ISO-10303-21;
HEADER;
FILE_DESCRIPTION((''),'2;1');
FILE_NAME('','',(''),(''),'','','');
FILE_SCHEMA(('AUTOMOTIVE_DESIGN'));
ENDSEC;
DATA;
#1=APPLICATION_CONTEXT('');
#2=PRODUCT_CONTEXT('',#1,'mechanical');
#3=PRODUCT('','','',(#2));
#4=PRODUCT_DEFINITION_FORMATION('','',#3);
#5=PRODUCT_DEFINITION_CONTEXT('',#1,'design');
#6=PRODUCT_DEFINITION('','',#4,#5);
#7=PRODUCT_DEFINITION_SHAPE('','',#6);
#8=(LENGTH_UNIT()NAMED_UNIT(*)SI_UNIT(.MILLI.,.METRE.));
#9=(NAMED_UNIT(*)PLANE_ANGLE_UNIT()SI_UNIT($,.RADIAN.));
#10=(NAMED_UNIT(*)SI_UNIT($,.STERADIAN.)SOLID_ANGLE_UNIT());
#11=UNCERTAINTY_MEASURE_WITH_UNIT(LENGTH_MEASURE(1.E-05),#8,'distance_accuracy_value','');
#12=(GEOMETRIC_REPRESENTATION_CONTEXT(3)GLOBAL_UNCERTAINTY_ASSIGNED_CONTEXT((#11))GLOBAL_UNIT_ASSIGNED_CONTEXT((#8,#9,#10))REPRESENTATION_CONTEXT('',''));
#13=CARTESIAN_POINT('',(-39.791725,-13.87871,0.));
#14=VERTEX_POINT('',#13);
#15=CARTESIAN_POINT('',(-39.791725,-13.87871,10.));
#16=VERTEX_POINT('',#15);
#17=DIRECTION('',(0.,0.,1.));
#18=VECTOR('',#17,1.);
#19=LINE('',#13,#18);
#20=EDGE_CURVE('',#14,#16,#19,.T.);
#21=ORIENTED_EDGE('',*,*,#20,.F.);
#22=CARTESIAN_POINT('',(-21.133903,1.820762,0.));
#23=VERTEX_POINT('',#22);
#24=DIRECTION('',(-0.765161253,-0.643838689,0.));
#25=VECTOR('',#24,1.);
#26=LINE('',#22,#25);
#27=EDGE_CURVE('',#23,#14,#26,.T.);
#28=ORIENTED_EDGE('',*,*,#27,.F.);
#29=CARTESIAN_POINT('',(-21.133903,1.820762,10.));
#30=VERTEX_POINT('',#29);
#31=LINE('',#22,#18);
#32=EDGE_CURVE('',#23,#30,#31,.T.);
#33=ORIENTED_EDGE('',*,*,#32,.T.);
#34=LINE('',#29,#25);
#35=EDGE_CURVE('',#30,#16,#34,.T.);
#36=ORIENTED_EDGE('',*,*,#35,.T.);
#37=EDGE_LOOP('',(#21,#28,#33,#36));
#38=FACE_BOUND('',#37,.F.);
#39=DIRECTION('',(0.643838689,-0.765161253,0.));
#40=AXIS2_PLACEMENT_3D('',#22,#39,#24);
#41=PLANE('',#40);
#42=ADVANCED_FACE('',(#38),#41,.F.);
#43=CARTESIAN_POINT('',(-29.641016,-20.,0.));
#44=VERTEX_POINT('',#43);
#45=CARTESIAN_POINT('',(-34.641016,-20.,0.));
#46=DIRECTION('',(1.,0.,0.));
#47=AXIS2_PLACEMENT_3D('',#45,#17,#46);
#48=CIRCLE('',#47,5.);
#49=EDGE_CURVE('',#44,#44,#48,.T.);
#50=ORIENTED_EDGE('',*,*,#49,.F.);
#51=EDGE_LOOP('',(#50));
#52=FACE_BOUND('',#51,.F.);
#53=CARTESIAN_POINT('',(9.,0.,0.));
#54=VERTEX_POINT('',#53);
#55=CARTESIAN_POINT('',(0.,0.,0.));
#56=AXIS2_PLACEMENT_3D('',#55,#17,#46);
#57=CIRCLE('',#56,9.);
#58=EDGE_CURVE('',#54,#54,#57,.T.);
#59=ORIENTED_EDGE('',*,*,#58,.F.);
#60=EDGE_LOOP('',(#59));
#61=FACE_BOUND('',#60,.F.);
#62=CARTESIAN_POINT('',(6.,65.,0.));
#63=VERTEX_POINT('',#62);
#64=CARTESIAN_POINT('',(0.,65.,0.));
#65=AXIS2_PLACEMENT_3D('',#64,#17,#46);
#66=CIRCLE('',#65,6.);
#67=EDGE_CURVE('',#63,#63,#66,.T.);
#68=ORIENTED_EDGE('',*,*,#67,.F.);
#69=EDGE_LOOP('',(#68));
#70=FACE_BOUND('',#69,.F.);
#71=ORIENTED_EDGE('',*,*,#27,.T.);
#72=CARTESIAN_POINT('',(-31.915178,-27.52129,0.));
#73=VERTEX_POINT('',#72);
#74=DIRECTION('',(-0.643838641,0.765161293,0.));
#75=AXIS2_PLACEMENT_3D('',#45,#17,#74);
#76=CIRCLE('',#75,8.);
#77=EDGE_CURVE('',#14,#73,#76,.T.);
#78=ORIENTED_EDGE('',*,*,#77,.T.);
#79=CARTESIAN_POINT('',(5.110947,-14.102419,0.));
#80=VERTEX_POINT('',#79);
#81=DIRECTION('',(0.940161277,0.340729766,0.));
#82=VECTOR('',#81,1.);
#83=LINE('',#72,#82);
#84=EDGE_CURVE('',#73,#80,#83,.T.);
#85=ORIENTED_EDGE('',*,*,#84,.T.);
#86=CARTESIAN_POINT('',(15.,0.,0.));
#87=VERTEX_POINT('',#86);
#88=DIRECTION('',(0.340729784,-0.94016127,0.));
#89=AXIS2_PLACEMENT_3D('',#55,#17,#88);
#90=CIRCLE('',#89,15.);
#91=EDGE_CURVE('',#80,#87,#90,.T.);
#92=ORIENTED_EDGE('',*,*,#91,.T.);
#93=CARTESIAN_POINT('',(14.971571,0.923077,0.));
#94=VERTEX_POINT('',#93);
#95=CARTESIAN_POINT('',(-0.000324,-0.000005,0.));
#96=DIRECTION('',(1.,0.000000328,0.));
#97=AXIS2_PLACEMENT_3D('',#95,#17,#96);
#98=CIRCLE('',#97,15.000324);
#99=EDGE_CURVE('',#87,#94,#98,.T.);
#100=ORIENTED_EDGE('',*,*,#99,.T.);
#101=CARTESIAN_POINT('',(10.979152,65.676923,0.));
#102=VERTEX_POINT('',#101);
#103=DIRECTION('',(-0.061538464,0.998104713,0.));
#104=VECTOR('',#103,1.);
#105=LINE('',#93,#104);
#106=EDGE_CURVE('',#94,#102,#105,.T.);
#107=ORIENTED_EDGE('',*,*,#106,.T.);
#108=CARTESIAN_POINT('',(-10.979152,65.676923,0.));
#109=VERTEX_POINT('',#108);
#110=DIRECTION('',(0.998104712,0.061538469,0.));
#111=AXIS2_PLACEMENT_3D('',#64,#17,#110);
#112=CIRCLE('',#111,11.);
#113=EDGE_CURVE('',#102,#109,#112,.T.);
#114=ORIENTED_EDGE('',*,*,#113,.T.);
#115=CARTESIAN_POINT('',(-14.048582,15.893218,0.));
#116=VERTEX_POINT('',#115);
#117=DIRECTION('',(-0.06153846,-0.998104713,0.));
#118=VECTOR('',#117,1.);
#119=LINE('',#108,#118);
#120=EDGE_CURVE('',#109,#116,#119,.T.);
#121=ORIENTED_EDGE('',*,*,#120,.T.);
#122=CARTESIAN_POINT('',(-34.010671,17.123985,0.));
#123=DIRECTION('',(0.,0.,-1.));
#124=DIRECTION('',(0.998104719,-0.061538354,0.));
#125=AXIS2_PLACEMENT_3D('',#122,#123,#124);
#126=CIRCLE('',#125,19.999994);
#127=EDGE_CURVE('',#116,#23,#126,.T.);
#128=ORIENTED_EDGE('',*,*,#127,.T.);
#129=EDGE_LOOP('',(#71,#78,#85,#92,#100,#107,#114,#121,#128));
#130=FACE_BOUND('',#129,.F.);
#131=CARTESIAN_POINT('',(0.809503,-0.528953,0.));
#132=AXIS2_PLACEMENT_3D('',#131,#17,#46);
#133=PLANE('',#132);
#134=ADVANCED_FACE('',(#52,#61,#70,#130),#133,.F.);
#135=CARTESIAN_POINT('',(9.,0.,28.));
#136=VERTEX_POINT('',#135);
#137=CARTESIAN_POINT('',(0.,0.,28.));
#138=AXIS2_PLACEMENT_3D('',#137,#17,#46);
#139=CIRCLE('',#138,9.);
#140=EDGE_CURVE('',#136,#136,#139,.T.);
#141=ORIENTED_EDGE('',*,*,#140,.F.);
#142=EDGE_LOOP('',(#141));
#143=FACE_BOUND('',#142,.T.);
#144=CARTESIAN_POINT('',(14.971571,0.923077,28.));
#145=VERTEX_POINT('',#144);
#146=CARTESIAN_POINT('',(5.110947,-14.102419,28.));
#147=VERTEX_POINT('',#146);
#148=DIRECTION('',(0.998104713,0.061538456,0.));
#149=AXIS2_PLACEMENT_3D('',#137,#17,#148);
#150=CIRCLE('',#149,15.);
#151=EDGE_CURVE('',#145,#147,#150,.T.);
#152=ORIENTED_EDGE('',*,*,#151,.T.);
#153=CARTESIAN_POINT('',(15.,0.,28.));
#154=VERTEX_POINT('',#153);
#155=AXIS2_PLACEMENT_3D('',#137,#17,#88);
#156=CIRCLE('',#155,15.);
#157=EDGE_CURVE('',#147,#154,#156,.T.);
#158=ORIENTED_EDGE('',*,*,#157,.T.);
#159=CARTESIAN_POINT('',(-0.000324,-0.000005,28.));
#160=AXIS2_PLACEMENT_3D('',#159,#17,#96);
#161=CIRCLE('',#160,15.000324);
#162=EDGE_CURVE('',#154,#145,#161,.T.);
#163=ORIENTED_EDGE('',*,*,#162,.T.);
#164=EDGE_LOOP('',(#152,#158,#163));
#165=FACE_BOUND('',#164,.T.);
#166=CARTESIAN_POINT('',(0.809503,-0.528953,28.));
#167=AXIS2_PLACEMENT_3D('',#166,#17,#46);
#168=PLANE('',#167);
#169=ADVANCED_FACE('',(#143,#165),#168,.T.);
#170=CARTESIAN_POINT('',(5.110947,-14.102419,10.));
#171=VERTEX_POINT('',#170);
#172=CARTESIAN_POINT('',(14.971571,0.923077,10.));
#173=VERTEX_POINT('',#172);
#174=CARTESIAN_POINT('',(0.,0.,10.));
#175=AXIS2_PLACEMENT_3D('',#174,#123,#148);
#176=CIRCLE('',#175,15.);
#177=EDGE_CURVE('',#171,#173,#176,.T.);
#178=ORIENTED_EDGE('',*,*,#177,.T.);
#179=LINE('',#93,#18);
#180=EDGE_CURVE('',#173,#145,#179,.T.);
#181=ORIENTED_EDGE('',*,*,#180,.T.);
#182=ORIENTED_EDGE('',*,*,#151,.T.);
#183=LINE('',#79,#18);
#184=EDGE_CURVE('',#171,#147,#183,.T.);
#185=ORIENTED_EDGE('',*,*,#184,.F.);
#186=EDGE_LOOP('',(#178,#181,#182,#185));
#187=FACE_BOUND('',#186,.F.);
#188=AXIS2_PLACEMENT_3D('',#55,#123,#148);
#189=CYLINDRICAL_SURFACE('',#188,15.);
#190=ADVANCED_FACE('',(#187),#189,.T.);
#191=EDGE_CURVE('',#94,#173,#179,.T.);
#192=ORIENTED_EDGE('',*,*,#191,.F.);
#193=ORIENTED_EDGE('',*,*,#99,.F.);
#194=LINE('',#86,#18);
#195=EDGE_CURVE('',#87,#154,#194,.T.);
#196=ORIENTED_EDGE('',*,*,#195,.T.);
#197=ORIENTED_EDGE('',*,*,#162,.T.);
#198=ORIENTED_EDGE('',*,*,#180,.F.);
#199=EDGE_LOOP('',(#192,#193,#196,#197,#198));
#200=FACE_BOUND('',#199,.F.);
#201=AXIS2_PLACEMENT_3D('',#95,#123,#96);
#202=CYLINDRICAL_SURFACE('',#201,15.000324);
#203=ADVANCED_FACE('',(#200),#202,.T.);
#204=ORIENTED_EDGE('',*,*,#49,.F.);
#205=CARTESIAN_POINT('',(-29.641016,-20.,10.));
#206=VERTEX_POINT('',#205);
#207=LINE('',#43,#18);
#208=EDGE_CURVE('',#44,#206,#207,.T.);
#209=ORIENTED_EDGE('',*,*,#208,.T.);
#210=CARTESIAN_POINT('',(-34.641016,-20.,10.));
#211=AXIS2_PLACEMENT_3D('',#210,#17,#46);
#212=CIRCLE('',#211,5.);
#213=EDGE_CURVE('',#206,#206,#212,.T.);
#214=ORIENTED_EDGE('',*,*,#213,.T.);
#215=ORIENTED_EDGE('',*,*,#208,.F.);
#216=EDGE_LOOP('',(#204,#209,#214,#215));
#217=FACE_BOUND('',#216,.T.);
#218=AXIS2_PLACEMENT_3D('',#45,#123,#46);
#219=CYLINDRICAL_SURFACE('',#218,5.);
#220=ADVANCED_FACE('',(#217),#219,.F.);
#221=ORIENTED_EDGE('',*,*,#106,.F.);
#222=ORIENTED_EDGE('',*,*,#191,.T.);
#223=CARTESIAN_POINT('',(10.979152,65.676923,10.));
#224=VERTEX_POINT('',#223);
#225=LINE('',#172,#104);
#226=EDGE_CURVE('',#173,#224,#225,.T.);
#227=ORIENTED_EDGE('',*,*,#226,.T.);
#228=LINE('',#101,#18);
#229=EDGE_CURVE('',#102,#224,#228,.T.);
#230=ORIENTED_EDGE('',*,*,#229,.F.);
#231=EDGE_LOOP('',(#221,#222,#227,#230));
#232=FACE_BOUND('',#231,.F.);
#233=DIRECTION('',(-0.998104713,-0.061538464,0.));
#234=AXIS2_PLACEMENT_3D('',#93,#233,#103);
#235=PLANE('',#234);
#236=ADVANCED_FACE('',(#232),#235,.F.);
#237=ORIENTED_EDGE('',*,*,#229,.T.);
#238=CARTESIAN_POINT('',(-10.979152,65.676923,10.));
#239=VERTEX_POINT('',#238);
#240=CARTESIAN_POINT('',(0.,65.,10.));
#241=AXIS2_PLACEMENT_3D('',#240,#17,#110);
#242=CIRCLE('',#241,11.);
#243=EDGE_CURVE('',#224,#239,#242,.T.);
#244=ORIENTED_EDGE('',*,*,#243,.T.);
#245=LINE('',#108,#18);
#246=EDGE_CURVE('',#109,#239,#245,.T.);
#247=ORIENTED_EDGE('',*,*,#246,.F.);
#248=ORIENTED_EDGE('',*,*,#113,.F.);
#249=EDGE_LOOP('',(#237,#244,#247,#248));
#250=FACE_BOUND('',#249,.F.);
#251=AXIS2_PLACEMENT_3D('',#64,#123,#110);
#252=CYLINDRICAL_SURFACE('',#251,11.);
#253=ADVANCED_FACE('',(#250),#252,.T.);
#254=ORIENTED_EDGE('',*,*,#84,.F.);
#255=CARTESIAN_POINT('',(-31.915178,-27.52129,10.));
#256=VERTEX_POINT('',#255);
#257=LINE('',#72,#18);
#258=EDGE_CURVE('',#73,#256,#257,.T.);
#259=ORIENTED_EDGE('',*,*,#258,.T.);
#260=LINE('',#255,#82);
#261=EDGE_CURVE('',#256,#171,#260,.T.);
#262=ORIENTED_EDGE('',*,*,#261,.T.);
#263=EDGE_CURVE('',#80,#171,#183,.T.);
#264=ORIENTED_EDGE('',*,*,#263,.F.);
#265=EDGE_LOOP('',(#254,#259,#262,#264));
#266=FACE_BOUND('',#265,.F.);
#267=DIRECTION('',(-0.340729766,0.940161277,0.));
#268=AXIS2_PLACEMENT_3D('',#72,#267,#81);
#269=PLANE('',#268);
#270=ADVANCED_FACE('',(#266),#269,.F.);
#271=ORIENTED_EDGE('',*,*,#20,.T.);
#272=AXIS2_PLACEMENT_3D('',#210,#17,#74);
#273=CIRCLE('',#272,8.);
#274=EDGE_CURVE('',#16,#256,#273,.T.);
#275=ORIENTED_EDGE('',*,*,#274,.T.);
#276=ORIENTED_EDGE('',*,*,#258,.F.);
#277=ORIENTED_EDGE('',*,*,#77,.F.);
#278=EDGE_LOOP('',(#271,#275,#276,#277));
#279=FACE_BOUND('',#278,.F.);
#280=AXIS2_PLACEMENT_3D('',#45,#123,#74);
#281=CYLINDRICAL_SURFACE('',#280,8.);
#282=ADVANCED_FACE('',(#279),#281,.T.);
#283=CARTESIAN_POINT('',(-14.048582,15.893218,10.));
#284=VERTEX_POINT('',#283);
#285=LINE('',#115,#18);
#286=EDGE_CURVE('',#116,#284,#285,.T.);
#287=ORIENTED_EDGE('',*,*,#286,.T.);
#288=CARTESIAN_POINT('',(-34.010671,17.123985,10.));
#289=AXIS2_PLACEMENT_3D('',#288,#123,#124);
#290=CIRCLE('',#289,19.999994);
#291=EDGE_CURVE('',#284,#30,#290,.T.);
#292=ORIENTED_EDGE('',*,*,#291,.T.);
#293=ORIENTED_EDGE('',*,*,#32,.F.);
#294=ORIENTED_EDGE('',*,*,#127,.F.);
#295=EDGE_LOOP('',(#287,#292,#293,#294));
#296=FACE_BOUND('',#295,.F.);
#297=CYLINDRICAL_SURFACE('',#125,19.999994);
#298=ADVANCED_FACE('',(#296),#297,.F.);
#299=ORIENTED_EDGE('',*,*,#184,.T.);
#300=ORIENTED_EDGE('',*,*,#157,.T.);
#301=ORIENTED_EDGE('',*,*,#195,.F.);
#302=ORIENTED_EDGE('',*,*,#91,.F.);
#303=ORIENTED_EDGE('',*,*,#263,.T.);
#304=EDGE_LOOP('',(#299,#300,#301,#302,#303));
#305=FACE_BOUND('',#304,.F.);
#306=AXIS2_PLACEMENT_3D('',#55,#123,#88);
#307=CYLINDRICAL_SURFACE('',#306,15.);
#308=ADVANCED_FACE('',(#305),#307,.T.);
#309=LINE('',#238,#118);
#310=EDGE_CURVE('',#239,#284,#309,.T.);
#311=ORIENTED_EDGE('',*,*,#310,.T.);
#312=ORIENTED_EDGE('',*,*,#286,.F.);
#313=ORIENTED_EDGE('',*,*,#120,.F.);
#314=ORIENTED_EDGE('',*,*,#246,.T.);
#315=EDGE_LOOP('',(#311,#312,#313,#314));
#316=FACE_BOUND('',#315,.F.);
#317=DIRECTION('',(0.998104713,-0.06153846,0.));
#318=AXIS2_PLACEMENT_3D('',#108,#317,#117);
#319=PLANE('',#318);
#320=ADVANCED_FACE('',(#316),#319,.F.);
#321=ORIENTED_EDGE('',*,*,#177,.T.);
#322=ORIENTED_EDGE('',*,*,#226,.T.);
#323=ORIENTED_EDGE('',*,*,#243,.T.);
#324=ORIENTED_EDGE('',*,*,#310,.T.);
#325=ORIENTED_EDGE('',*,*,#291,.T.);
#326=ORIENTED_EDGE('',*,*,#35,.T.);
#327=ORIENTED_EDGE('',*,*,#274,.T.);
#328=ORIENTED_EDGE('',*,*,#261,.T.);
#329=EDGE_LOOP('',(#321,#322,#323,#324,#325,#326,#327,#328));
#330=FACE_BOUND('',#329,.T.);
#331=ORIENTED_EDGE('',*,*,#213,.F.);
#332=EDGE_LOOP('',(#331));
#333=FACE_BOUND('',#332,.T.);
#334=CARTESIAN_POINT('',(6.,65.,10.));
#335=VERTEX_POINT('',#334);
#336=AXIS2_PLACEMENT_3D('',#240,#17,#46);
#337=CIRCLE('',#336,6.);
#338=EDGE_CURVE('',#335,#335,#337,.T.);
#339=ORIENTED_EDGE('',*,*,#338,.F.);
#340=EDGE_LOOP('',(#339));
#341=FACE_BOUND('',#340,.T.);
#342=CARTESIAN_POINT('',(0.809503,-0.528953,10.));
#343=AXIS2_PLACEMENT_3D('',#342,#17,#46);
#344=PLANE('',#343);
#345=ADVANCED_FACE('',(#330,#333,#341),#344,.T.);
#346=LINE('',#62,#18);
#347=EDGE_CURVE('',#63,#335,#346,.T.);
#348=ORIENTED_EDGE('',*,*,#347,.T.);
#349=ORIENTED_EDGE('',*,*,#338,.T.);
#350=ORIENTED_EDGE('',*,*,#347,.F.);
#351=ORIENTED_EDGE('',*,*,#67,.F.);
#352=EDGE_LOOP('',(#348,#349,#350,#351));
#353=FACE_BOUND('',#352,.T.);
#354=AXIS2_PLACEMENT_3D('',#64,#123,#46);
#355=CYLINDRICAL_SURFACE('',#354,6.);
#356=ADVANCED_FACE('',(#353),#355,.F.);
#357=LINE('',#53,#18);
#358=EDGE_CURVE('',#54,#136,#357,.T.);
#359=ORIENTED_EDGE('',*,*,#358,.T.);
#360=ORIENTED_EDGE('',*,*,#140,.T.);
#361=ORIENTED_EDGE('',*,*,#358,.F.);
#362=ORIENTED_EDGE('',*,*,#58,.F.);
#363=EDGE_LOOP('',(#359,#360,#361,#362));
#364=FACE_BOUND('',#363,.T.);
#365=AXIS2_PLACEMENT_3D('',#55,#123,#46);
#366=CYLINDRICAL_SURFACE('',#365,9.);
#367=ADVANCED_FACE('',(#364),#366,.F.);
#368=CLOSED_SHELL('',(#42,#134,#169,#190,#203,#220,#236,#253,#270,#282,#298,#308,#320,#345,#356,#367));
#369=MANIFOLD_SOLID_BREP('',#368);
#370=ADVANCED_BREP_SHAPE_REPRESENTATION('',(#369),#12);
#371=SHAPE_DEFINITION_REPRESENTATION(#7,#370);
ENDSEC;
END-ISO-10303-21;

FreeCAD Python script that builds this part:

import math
import FreeCAD as App
import Part
import Sketcher

V = App.Vector

doc = App.newDocument("Part")
body = doc.addObject("PartDesign::Body", "Body")

# Sketch on XY plane
sketch1 = doc.addObject("Sketcher::SketchObject", "Sketch")
body.addObject(sketch1)
sketch1.AttachmentSupport = (doc.XY_Plane, [""])
sketch1.MapMode = "FlatFace"
sketch1.addGeometry([
    Part.ArcOfCircle(Part.Circle(V(0, 0, 0), V(0, 0, 1), 15), math.radians(-70.078657), math.radians(0.000001)),
    Part.ArcOfCircle(Part.Circle(V(-0.000324, -0.000005, 0), V(0, 0, 1), 15.000324), math.radians(0.000019), math.radians(3.528066)),
    Part.ArcOfCircle(Part.Circle(V(0, 0, 0), V(0, 0, 1), 15), math.radians(3.528123), math.radians(289.921343)),
    Part.Circle(V(0, 0, 0), V(0, 0, 1), 9),
], False)
sketch1.addConstraint([
    Sketcher.Constraint("Coincident", 0, 2, 1, 1),
    Sketcher.Constraint("Coincident", 1, 2, 2, 1),
    Sketcher.Constraint("Coincident", 2, 2, 0, 1),
    Sketcher.Constraint("Coincident", 0, 3, -1, 1),
    Sketcher.Constraint("Coincident", 2, 3, -1, 1),
    Sketcher.Constraint("Coincident", 3, 3, -1, 1),
    Sketcher.Constraint("PointOnObject", 0, 2, -1),
    Sketcher.Constraint("Diameter", 3, 18.0),
    Sketcher.Constraint("Radius", 0, 15.0),
    Sketcher.Constraint("Radius", 1, 15.000324),
    Sketcher.Constraint("DistanceX", -1, 1, 1, 2, 14.971571),
    Sketcher.Constraint("DistanceY", 2, 2, -1, 1, 14.102419),
])
pad1 = doc.addObject("PartDesign::Pad", "Pad")
body.addObject(pad1)
pad1.Profile = sketch1
pad1.Length = 28

# Sketch on XY plane
sketch2 = doc.addObject("Sketcher::SketchObject", "Sketch001")
body.addObject(sketch2)
sketch2.AttachmentSupport = (doc.XY_Plane, [""])
sketch2.MapMode = "FlatFace"
sketch2.addGeometry([
    Part.ArcOfCircle(Part.Circle(V(0, 0, 0), V(0, 0, 1), 15), math.radians(-70.078657), math.radians(0.000001)),  # 0
    Part.ArcOfCircle(Part.Circle(V(-0.000324, -0.000005, 0), V(0, 0, 1), 15.000324), math.radians(0.000019), math.radians(3.528066)),  # 1
    Part.LineSegment(V(14.971571, 0.923077, 0), V(10.979152, 65.676923, 0)),  # 2
    Part.ArcOfCircle(Part.Circle(V(0, 65, 0), V(0, 0, 1), 11), math.radians(3.528124), math.radians(176.471876)),  # 3
    Part.LineSegment(V(-10.979152, 65.676923, 0), V(-14.048582, 15.893218, 0)),  # 4
    Part.ArcOfCircle(Part.Circle(V(-34.010671, 17.123985, 0), V(0, 0, 1), 19.999994), math.radians(-49.921349), math.radians(-3.528117)),  # 5
    Part.LineSegment(V(-21.133903, 1.820762, 0), V(-39.791725, -13.87871, 0)),  # 6
    Part.ArcOfCircle(Part.Circle(V(-34.641016, -20, 0), V(0, 0, 1), 8), math.radians(130.078657), math.radians(289.921342)),  # 7
    Part.LineSegment(V(-31.915178, -27.52129, 0), V(5.110947, -14.102419, 0)),  # 8
    Part.Circle(V(-34.641016, -20, 0), V(0, 0, 1), 5),  # 9
    Part.Circle(V(0, 0, 0), V(0, 0, 1), 9),  # 10
    Part.Circle(V(0, 65, 0), V(0, 0, 1), 6),  # 11
], False)
sketch2.addConstraint([
    Sketcher.Constraint("Coincident", 0, 2, 1, 1),
    Sketcher.Constraint("Coincident", 1, 2, 2, 1),
    Sketcher.Constraint("Coincident", 2, 2, 3, 1),
    Sketcher.Constraint("Coincident", 3, 2, 4, 1),
    Sketcher.Constraint("Coincident", 4, 2, 5, 2),
    Sketcher.Constraint("Coincident", 5, 1, 6, 1),
    Sketcher.Constraint("Coincident", 6, 2, 7, 1),
    Sketcher.Constraint("Coincident", 7, 2, 8, 1),
    Sketcher.Constraint("Coincident", 8, 2, 0, 1),
    Sketcher.Constraint("Coincident", 0, 3, -1, 1),
    Sketcher.Constraint("Coincident", 10, 3, -1, 1),
    Sketcher.Constraint("Coincident", 9, 3, 7, 3),
    Sketcher.Constraint("Coincident", 11, 3, 3, 3),
    Sketcher.Constraint("PointOnObject", 3, 3, -2),
    Sketcher.Constraint("PointOnObject", 0, 2, -1),
    Sketcher.Constraint("Diameter", 9, 10.0),
    Sketcher.Constraint("Diameter", 10, 18.0),
    Sketcher.Constraint("Diameter", 11, 12.0),
    Sketcher.Constraint("Radius", 0, 15.0),
    Sketcher.Constraint("Radius", 3, 11.0),
    Sketcher.Constraint("Radius", 7, 8.0),
    Sketcher.Constraint("DistanceY", -1, 1, 3, 3, 65.0),
    Sketcher.Constraint("DistanceY", 7, 3, -1, 1, 20.0),
    Sketcher.Constraint("Radius", 1, 15.000324),
    Sketcher.Constraint("Radius", 5, 19.999994),
    Sketcher.Constraint("Distance", 4, 49.878239),
    Sketcher.Constraint("Distance", 6, 24.38417),
    Sketcher.Constraint("DistanceX", 5, 3, -1, 1, 34.010671),
    Sketcher.Constraint("DistanceX", -1, 1, 1, 2, 14.971571),
    Sketcher.Constraint("DistanceX", -1, 1, 2, 2, 10.979152),
    Sketcher.Constraint("DistanceX", 3, 2, -1, 1, 10.979152),
    Sketcher.Constraint("DistanceY", -1, 1, 5, 1, 1.820762),
    Sketcher.Constraint("DistanceY", 6, 2, -1, 1, 13.87871),
    Sketcher.Constraint("DistanceX", 7, 2, -1, 1, 31.915178),
    Sketcher.Constraint("DistanceY", 7, 2, -1, 1, 27.52129),
    Sketcher.Constraint("DistanceY", 8, 2, -1, 1, 14.102419),
    Sketcher.Constraint("DistanceY", 1, 3, 5, 3, 17.12399),
])
pad2 = doc.addObject("PartDesign::Pad", "Pad001")
body.addObject(pad2)
pad2.Profile = sketch2
pad2.Length = 10

doc.recompute()
